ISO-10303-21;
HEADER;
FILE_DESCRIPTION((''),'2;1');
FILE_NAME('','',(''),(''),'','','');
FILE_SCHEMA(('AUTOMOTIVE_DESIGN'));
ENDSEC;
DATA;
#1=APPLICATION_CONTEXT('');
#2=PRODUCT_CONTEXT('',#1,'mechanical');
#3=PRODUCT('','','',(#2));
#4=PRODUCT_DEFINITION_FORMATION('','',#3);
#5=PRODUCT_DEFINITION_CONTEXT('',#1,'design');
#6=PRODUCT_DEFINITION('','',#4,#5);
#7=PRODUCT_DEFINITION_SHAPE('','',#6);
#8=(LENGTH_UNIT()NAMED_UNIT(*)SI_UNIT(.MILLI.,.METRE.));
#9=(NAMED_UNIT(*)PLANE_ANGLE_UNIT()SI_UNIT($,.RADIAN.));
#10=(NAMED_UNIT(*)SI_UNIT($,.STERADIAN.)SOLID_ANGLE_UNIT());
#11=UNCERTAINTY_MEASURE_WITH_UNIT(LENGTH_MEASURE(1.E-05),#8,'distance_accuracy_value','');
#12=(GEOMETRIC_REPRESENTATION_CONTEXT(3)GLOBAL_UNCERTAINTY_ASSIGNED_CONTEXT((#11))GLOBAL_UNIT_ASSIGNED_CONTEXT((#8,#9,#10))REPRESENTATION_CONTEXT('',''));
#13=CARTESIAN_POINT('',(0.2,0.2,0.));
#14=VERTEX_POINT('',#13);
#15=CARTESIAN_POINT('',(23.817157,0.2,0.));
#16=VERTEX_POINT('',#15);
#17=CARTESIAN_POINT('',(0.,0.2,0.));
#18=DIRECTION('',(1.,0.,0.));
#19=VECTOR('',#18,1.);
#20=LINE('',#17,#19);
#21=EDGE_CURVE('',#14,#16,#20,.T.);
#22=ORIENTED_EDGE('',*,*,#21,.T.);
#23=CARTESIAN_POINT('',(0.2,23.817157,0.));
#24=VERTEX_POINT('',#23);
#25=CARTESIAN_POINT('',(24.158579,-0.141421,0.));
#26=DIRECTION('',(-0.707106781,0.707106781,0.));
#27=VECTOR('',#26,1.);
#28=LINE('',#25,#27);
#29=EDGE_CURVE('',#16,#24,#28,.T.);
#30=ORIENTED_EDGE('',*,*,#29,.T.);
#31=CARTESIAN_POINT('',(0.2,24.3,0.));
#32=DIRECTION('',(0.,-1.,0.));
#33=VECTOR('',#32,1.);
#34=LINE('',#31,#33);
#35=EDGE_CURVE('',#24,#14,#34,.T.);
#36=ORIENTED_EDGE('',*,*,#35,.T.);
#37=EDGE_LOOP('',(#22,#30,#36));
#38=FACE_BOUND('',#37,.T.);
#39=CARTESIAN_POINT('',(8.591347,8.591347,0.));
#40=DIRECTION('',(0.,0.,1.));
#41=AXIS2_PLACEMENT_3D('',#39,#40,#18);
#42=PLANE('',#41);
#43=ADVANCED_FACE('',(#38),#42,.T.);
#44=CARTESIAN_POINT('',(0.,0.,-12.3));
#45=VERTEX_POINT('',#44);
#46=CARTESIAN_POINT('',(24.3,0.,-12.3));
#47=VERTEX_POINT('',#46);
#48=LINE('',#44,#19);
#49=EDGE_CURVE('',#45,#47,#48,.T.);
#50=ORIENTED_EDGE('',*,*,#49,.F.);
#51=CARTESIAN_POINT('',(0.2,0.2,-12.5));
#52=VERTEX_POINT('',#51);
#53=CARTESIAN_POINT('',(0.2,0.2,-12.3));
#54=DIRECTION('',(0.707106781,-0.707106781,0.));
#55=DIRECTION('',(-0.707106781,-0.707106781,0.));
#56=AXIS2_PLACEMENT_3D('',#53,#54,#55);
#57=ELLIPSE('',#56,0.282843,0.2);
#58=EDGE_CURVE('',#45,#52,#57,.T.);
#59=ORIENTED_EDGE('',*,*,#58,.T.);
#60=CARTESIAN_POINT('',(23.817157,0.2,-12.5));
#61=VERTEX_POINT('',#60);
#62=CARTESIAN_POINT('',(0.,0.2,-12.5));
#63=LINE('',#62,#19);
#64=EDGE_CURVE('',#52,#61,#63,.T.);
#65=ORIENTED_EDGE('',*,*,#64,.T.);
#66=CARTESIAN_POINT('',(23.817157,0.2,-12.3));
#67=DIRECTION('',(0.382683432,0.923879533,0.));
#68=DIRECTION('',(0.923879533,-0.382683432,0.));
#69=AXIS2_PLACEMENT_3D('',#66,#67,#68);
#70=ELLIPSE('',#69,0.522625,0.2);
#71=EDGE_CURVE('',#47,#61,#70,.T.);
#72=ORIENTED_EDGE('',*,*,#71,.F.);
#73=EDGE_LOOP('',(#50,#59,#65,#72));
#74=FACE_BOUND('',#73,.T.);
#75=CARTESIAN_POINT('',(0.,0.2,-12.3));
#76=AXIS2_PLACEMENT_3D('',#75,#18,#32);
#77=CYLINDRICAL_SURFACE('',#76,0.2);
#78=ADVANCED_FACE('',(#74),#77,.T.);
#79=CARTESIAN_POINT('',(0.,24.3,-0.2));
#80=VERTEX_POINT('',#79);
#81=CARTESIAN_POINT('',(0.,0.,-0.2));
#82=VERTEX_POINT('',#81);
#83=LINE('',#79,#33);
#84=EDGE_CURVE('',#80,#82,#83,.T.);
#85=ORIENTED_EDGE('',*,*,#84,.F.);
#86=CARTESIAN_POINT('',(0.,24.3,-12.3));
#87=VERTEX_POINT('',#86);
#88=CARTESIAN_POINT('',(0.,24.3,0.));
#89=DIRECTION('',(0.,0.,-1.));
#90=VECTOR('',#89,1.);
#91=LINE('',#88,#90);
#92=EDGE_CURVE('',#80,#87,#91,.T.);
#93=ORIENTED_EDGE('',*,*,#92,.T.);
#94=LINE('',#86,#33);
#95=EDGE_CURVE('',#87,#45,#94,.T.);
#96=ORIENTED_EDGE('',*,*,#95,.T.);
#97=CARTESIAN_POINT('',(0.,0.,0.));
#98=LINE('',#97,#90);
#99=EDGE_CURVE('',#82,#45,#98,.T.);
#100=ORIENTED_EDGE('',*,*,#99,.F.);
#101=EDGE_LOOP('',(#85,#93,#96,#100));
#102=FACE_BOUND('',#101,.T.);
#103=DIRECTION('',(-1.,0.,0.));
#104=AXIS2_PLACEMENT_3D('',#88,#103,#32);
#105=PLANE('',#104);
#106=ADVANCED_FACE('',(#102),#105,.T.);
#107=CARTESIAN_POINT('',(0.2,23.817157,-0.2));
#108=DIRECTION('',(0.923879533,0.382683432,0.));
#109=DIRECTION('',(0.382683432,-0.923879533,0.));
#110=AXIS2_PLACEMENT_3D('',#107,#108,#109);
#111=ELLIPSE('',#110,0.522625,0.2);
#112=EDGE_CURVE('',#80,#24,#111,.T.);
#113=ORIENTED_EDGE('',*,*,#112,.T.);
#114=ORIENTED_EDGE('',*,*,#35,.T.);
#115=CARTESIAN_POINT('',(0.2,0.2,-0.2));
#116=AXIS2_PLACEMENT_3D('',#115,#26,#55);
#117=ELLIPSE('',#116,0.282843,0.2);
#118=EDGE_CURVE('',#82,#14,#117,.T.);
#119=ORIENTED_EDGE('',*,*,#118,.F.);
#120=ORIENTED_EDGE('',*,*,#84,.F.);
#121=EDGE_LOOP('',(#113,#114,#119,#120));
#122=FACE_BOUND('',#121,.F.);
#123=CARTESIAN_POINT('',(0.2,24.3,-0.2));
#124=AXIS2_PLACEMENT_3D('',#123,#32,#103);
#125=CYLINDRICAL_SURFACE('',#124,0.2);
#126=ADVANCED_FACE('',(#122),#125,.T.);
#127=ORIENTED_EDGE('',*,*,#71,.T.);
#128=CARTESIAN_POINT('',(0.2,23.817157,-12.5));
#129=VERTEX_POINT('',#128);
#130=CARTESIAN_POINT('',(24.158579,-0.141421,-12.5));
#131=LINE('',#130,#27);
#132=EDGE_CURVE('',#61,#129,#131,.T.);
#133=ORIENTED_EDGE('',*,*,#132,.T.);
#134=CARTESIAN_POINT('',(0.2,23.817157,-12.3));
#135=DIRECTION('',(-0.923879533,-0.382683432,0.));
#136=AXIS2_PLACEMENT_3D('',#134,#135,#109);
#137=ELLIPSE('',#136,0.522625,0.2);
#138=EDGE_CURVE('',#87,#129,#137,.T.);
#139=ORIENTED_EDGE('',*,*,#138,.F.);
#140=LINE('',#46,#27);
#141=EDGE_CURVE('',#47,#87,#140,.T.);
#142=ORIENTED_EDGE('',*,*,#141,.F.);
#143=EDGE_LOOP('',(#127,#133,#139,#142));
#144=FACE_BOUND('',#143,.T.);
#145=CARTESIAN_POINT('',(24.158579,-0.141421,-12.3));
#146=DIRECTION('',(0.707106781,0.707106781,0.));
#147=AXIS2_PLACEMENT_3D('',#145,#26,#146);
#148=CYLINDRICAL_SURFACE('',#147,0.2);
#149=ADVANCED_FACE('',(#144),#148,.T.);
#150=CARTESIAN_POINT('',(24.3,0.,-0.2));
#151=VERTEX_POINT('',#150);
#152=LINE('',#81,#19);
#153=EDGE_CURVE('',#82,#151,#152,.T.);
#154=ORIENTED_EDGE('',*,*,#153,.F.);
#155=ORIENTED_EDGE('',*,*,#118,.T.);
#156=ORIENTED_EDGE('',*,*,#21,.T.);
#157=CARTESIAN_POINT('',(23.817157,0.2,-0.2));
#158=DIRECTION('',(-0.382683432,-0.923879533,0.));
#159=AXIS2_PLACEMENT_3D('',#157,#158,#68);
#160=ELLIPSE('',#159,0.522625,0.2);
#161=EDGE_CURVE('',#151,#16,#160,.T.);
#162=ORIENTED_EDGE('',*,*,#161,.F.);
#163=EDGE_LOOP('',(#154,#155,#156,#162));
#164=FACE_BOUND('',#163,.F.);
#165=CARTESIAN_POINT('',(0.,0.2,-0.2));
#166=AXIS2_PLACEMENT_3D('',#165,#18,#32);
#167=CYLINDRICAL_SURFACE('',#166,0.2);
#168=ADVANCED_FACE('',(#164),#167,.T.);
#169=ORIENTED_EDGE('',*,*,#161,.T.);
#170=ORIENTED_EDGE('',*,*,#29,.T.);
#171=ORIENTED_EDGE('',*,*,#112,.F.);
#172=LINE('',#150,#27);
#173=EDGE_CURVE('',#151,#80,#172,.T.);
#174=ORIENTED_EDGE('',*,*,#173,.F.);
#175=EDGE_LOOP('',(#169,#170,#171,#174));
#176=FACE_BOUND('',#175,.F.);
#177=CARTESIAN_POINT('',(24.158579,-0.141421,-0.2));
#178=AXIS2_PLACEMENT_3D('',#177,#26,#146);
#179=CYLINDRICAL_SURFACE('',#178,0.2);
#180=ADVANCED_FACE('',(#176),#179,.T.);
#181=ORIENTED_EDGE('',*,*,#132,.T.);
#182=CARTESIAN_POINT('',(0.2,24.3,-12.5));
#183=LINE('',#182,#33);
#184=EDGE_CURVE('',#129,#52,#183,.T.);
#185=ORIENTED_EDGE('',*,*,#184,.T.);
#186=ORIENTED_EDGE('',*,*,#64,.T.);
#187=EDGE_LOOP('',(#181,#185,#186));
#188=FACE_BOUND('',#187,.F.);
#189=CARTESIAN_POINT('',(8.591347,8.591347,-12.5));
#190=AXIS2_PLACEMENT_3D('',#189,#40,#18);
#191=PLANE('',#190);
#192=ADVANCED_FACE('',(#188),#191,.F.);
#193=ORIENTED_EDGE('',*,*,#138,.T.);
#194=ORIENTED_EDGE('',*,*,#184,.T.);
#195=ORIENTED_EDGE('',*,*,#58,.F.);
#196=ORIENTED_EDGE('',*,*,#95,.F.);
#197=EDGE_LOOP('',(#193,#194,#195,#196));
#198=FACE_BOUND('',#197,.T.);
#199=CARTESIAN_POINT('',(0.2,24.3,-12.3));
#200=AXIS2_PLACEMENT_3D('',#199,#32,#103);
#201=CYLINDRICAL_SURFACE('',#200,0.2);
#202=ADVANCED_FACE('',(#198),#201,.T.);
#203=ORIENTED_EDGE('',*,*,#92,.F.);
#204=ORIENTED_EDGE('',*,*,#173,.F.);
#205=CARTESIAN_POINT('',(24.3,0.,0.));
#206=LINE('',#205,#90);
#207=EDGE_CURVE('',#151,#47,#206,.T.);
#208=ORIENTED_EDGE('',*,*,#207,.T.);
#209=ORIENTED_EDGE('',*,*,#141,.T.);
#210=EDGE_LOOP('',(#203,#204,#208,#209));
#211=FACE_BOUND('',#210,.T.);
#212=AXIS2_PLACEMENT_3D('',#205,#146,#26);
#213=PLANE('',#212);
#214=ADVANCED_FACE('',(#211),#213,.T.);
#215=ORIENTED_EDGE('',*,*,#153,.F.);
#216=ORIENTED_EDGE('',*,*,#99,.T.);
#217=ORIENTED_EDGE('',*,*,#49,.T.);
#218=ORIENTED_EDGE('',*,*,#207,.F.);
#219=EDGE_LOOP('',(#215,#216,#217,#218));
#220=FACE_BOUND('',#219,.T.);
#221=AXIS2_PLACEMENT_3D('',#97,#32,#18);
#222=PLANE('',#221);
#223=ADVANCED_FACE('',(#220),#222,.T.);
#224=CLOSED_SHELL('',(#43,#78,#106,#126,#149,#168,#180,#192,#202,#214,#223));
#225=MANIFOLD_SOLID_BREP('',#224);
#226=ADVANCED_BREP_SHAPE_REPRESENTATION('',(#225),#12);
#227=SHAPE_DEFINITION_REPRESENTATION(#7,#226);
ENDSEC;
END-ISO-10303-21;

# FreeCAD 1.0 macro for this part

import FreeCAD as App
import Part
import Sketcher

V = App.Vector


def edges_at(feature, points):
    """Names of the edges that pass closest to the given points."""
    edges = feature.Shape.Edges
    near = lambda p: min(range(len(edges)), key=lambda i: edges[i].distToShape(Part.Vertex(*p))[0])
    return sorted({f"Edge{near(p) + 1}" for p in points})


def add_polygon(sketch, points):
    """Adds a closed chain of lines whose ends are joined by coincident constraints."""
    first, n = sketch.GeometryCount, len(points)
    for a, b in zip(points, points[1:] + points[:1]):
        sketch.addGeometry(Part.LineSegment(App.Vector(*a, 0), App.Vector(*b, 0)), False)
    for i in range(n):
        sketch.addConstraint(Sketcher.Constraint("Coincident", first + i, 2, first + (i + 1) % n, 1))

doc = App.newDocument("Part")
body = doc.addObject("PartDesign::Body", "Body")

# Sketch on XY plane
sketch1 = doc.addObject("Sketcher::SketchObject", "Sketch")
body.addObject(sketch1)
sketch1.AttachmentSupport = (doc.XY_Plane, [""])
sketch1.MapMode = "FlatFace"
add_polygon(sketch1, [(0, 24), (0, 0), (24, 0)])  # lines 0-2
sketch1.addConstraint([
    Sketcher.Constraint("Vertical", 0),
    Sketcher.Constraint("Horizontal", 1),
    Sketcher.Constraint("Coincident", 0, 2, -1, 1),
    Sketcher.Constraint("Equal", 1, 0),
    Sketcher.Constraint("DistanceX", 1, 1, 1, 2, 24.3),
])
pad1 = doc.addObject("PartDesign::Pad", "Pad")
body.addObject(pad1)
pad1.Profile = sketch1
pad1.Length = 12.5
pad1.Reversed = True
doc.recompute()

fillet = doc.addObject("PartDesign::Fillet", "Fillet")
body.addObject(fillet)
fillet.Base = (pad1, edges_at(pad1, [
    (0, 12.15, 0),
    (12.15, 0, 0),
    (12.15, 12.15, 0),
    (0, 12.15, -12.5),
    (12.15, 0, -12.5),
    (12.15, 12.15, -12.5),
]))
fillet.Radius = 0.2

doc.recompute()
